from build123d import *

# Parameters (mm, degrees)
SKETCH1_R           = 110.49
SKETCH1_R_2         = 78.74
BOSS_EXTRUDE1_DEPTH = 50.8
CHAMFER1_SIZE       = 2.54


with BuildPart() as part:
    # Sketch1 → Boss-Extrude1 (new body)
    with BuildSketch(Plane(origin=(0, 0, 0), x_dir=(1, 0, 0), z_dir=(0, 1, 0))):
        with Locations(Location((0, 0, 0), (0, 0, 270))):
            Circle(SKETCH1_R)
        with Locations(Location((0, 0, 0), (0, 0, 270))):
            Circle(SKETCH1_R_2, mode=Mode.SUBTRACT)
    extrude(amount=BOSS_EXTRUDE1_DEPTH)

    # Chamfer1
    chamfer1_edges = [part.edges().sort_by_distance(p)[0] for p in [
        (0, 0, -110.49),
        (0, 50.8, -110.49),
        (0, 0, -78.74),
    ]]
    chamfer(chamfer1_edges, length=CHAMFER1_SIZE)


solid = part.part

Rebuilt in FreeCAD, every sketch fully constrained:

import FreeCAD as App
import Part
import Sketcher
Q = App.Units.Quantity


def edges_at(feature, points):
    """Names of the edges that pass closest to the given points."""
    edges = feature.Shape.Edges
    near = lambda p: min(range(len(edges)), key=lambda i: edges[i].distToShape(Part.Vertex(*p))[0])
    return sorted({f"Edge{near(p) + 1}" for p in points})

doc = App.newDocument("Part")
body = doc.addObject("PartDesign::Body", "Body")

sketch1 = body.newObject("Sketcher::SketchObject", "Sketch")
sketch1.AttachmentSupport = (doc.getObject("XZ_Plane"), [""])
sketch1.MapMode = "FlatFace"
sketch1.addGeometry([
    Part.Circle(App.Vector(0, 0, 0), App.Vector(0, 0, 1), 110),
    Part.Circle(App.Vector(0, 0, 0), App.Vector(0, 0, 1), 79),
], False)
sketch1.addConstraint([
    Sketcher.Constraint("Coincident", 0, 3, -1, 1),
    Sketcher.Constraint("Coincident", 1, 3, -1, 1),
    Sketcher.Constraint("Diameter", 0, Q("8.7 in")),
    Sketcher.Constraint("Diameter", 1, Q("6.2 in")),
])
pad1 = body.newObject("PartDesign::Pad", "Pad")
pad1.Profile = sketch1
pad1.Length = Q("2 in")
pad1.Reversed = True
doc.recompute()

chamfer = body.newObject("PartDesign::Chamfer", "Chamfer")
chamfer.Base = (pad1, edges_at(pad1, [(0, 0, -110.49), (0, 50.8, -110.49), (0, 0, -78.74)]))
chamfer.Size = Q("0.1 in")

doc.recompute()
